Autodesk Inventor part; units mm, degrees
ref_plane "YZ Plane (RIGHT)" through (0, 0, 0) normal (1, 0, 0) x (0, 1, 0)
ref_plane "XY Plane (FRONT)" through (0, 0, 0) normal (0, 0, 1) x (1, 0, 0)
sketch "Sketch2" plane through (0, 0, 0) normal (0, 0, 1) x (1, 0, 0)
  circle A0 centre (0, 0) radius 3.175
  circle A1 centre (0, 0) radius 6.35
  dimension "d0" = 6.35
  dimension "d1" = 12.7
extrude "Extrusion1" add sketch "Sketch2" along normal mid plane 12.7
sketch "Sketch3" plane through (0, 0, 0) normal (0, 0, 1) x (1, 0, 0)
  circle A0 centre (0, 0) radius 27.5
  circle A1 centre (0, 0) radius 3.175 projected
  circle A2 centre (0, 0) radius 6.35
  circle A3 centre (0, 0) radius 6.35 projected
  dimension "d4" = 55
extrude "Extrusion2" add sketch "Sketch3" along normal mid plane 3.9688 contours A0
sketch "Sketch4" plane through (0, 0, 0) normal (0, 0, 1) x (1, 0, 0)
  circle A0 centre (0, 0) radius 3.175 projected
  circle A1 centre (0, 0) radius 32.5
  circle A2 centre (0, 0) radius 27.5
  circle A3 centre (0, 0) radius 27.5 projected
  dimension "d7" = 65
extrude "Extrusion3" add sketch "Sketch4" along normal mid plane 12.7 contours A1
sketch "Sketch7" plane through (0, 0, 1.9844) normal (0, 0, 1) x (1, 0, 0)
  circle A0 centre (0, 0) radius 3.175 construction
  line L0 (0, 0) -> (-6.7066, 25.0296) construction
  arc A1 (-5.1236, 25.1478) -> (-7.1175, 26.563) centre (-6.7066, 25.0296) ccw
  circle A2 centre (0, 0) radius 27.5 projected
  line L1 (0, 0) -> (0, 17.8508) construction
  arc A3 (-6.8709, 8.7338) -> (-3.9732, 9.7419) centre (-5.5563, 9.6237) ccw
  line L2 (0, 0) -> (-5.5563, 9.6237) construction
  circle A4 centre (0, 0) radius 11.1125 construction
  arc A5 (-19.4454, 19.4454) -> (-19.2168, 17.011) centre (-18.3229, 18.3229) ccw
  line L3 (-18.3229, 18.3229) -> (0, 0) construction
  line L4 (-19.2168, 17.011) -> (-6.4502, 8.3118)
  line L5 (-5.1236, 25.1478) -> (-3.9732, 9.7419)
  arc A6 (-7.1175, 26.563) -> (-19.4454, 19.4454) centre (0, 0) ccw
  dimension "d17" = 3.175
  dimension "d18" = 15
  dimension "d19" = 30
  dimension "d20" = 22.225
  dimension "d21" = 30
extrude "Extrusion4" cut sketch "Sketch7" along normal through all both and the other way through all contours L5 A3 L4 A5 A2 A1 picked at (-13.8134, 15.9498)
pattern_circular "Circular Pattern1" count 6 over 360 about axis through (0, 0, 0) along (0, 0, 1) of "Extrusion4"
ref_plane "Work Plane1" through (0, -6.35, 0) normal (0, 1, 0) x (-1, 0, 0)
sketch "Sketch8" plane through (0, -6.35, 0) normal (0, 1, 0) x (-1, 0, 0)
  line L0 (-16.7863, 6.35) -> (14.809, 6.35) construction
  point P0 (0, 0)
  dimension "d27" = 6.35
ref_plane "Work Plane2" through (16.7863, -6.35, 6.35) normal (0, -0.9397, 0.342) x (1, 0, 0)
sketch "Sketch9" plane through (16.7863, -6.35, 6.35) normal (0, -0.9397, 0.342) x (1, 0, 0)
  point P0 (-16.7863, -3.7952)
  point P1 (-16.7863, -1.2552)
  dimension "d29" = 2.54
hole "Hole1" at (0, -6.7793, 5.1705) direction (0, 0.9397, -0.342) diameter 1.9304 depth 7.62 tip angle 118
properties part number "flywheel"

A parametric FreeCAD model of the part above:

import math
import FreeCAD as App
import Part
import Sketcher
Q = App.Units.Quantity

doc = App.newDocument("Part")
body = doc.addObject("PartDesign::Body", "Body")

# Sketch on XY plane
sketch1 = body.newObject("Sketcher::SketchObject", "Sketch")
sketch1.AttachmentSupport = (doc.getObject("XY_Plane"), [""])
sketch1.MapMode = "FlatFace"
sketch1.addGeometry(Part.Circle(App.Vector(0, 0, 0), App.Vector(0, 0, 1), 6.35), False)
sketch1.addGeometry(Part.Circle(App.Vector(0, 0, 0), App.Vector(0, 0, 1), 3.175), False)
sketch1.addConstraint(Sketcher.Constraint("Coincident", 0, 3, -1, 1))
sketch1.addConstraint(Sketcher.Constraint("Coincident", 1, 3, -1, 1))
sketch1.addConstraint(Sketcher.Constraint("Diameter", 0, Q("0.5 in")))
sketch1.addConstraint(Sketcher.Constraint("Diameter", 1, Q("0.25 in")))
pad1 = body.newObject("PartDesign::Pad", "Pad")
pad1.Profile = sketch1
pad1.Length = Q("0.5 in")
pad1.Midplane = True

# Sketch on XY plane
sketch2 = body.newObject("Sketcher::SketchObject", "Sketch001")
sketch2.AttachmentSupport = (doc.getObject("XY_Plane"), [""])
sketch2.MapMode = "FlatFace"
sketch2.addGeometry(Part.Circle(App.Vector(0, 0, 0), App.Vector(0, 0, 1), 27.5), False)
sketch2.addGeometry(Part.Circle(App.Vector(0, 0, 0), App.Vector(0, 0, 1), 6.35), False)
sketch2.addConstraint(Sketcher.Constraint("Coincident", 0, 3, -1, 1))
sketch2.addConstraint(Sketcher.Constraint("Coincident", 1, 3, -1, 1))
sketch2.addConstraint(Sketcher.Constraint("Diameter", 1, Q("0.5 in")))
sketch2.addConstraint(Sketcher.Constraint("Diameter", 0, 55.0))
pad2 = body.newObject("PartDesign::Pad", "Pad001")
pad2.Profile = sketch2
pad2.Length = Q("0.156252 in")
pad2.Midplane = True

# Sketch on XY plane
sketch3 = body.newObject("Sketcher::SketchObject", "Sketch002")
sketch3.AttachmentSupport = (doc.getObject("XY_Plane"), [""])
sketch3.MapMode = "FlatFace"
sketch3.addGeometry(Part.Circle(App.Vector(0, 0, 0), App.Vector(0, 0, 1), 32.5), False)
sketch3.addGeometry(Part.Circle(App.Vector(0, 0, 0), App.Vector(0, 0, 1), 27.5), False)
sketch3.addConstraint(Sketcher.Constraint("Coincident", 0, 3, -1, 1))
sketch3.addConstraint(Sketcher.Constraint("Coincident", 1, 3, -1, 1))
sketch3.addConstraint(Sketcher.Constraint("Diameter", 0, 65.0))
sketch3.addConstraint(Sketcher.Constraint("Diameter", 1, 55.0))
pad3 = body.newObject("PartDesign::Pad", "Pad002")
pad3.Profile = sketch3
pad3.Length = Q("0.5 in")
pad3.Midplane = True

# Sketch on XY plane
sketch4 = body.newObject("Sketcher::SketchObject", "Sketch003")
sketch4.AttachmentSupport = (doc.getObject("XY_Plane"), [""])
sketch4.MapMode = "FlatFace"
sketch4.AttachmentOffset = App.Placement(App.Vector(0, 0, 0.078126 * 25.4), App.Rotation())
sketch4.addGeometry(Part.LineSegment(App.Vector(-3.9732, 9.7419, 0), App.Vector(-5.1236, 25.1478, 0)), False)
sketch4.addGeometry(Part.ArcOfCircle(Part.Circle(App.Vector(-6.7066, 25.0296, 0), App.Vector(0, 0, 1), 1.587407), math.radians(4.270257), math.radians(105.000931)), False)
sketch4.addGeometry(Part.ArcOfCircle(Part.Circle(App.Vector(0, 0, 0), App.Vector(0, 0, 1), 27.5), math.radians(104.999931), math.radians(135)), False)
sketch4.addGeometry(Part.ArcOfCircle(Part.Circle(App.Vector(-18.3229, 18.3229, 0), App.Vector(0, 0, 1), 1.587455), math.radians(135), math.radians(235.730337)), False)
sketch4.addGeometry(Part.LineSegment(App.Vector(-19.2168, 17.011, 0), App.Vector(-6.4502, 8.3118, 0)), False)
sketch4.addGeometry(Part.ArcOfCircle(Part.Circle(App.Vector(-5.5563, 9.6237, 0), App.Vector(0, 0, 1), 1.587481), math.radians(-124.269663), math.radians(4.269988)), False)
sketch4.addConstraint(Sketcher.Constraint("Tangent", 0, 2, 1, 1))
sketch4.addConstraint(Sketcher.Constraint("Tangent", 1, 2, 2, 1))
sketch4.addConstraint(Sketcher.Constraint("Tangent", 2, 2, 3, 1))
sketch4.addConstraint(Sketcher.Constraint("Tangent", 3, 2, 4, 1))
sketch4.addConstraint(Sketcher.Constraint("Tangent", 4, 2, 5, 1))
sketch4.addConstraint(Sketcher.Constraint("Tangent", 5, 2, 0, 1))
sketch4.addConstraint(Sketcher.Constraint("Coincident", 2, 3, -1, 1))
sketch4.addConstraint(Sketcher.Constraint("Equal", 1, 3))
sketch4.addConstraint(Sketcher.Constraint("Equal", 3, 5))
sketch4.addConstraint(Sketcher.Constraint("Equal", 0, 4))
sketch4.addConstraint(Sketcher.Constraint("Radius", 1, Q("0.0625 in")))
sketch4.addConstraint(Sketcher.Constraint("Angle", 0, Q("94.2705 deg")))
sketch4.addConstraint(Sketcher.Constraint("Angle", 4, Q("-34.2706 deg")))
sketch4.addConstraint(Sketcher.Constraint("Radius", 2, 27.5))
sketch4.addConstraint(Sketcher.Constraint("DistanceX", 5, 3, -1, 1, Q("0.218752 in")))
pocket1 = body.newObject("PartDesign::Pocket", "Pocket")
pocket1.Profile = sketch4
pocket1.Type = "ThroughAll"
pocket1.Midplane = True
doc.recompute()

polarpattern = body.newObject("PartDesign::PolarPattern", "PolarPattern")
polarpattern.Originals = [pocket1]
polarpattern.Axis = (doc.getObject("Z_Axis"), [""])
polarpattern.Angle = 360
polarpattern.Occurrences = 6
body.Tip = polarpattern

# Sketch on an angled plane
sketch5 = body.newObject("Sketcher::SketchObject", "Sketch004")
sketch5.Placement = App.Placement(App.Vector(0, -7.648039, 2.783659), App.Rotation(App.Vector(0, -0.342020143, -0.939692621), App.Vector(1, 0, 0), App.Vector(0, -0.939692621, 0.342020143), "ZXY"))
sketch5.addGeometry(Part.Circle(App.Vector(-2.540024, 0, 0), App.Vector(0, 0, 1), 0.9652), False)
sketch5.addConstraint(Sketcher.Constraint("PointOnObject", 0, 3, -1))
sketch5.addConstraint(Sketcher.Constraint("Diameter", 0, Q("0.076 in")))
sketch5.addConstraint(Sketcher.Constraint("DistanceX", 0, 3, -1, 1, Q("0.1 in")))
doc.recompute()
hole = body.newObject("PartDesign::Hole", "Hole")
hole.Profile = sketch5
hole.ThreadType = "None"
hole.Diameter = Q("0.076 in")
hole.DepthType = "Dimension"
hole.Depth = Q("0.3 in")
hole.DrillPoint = "Angled"
hole.DrillPointAngle = 118

doc.recompute()
